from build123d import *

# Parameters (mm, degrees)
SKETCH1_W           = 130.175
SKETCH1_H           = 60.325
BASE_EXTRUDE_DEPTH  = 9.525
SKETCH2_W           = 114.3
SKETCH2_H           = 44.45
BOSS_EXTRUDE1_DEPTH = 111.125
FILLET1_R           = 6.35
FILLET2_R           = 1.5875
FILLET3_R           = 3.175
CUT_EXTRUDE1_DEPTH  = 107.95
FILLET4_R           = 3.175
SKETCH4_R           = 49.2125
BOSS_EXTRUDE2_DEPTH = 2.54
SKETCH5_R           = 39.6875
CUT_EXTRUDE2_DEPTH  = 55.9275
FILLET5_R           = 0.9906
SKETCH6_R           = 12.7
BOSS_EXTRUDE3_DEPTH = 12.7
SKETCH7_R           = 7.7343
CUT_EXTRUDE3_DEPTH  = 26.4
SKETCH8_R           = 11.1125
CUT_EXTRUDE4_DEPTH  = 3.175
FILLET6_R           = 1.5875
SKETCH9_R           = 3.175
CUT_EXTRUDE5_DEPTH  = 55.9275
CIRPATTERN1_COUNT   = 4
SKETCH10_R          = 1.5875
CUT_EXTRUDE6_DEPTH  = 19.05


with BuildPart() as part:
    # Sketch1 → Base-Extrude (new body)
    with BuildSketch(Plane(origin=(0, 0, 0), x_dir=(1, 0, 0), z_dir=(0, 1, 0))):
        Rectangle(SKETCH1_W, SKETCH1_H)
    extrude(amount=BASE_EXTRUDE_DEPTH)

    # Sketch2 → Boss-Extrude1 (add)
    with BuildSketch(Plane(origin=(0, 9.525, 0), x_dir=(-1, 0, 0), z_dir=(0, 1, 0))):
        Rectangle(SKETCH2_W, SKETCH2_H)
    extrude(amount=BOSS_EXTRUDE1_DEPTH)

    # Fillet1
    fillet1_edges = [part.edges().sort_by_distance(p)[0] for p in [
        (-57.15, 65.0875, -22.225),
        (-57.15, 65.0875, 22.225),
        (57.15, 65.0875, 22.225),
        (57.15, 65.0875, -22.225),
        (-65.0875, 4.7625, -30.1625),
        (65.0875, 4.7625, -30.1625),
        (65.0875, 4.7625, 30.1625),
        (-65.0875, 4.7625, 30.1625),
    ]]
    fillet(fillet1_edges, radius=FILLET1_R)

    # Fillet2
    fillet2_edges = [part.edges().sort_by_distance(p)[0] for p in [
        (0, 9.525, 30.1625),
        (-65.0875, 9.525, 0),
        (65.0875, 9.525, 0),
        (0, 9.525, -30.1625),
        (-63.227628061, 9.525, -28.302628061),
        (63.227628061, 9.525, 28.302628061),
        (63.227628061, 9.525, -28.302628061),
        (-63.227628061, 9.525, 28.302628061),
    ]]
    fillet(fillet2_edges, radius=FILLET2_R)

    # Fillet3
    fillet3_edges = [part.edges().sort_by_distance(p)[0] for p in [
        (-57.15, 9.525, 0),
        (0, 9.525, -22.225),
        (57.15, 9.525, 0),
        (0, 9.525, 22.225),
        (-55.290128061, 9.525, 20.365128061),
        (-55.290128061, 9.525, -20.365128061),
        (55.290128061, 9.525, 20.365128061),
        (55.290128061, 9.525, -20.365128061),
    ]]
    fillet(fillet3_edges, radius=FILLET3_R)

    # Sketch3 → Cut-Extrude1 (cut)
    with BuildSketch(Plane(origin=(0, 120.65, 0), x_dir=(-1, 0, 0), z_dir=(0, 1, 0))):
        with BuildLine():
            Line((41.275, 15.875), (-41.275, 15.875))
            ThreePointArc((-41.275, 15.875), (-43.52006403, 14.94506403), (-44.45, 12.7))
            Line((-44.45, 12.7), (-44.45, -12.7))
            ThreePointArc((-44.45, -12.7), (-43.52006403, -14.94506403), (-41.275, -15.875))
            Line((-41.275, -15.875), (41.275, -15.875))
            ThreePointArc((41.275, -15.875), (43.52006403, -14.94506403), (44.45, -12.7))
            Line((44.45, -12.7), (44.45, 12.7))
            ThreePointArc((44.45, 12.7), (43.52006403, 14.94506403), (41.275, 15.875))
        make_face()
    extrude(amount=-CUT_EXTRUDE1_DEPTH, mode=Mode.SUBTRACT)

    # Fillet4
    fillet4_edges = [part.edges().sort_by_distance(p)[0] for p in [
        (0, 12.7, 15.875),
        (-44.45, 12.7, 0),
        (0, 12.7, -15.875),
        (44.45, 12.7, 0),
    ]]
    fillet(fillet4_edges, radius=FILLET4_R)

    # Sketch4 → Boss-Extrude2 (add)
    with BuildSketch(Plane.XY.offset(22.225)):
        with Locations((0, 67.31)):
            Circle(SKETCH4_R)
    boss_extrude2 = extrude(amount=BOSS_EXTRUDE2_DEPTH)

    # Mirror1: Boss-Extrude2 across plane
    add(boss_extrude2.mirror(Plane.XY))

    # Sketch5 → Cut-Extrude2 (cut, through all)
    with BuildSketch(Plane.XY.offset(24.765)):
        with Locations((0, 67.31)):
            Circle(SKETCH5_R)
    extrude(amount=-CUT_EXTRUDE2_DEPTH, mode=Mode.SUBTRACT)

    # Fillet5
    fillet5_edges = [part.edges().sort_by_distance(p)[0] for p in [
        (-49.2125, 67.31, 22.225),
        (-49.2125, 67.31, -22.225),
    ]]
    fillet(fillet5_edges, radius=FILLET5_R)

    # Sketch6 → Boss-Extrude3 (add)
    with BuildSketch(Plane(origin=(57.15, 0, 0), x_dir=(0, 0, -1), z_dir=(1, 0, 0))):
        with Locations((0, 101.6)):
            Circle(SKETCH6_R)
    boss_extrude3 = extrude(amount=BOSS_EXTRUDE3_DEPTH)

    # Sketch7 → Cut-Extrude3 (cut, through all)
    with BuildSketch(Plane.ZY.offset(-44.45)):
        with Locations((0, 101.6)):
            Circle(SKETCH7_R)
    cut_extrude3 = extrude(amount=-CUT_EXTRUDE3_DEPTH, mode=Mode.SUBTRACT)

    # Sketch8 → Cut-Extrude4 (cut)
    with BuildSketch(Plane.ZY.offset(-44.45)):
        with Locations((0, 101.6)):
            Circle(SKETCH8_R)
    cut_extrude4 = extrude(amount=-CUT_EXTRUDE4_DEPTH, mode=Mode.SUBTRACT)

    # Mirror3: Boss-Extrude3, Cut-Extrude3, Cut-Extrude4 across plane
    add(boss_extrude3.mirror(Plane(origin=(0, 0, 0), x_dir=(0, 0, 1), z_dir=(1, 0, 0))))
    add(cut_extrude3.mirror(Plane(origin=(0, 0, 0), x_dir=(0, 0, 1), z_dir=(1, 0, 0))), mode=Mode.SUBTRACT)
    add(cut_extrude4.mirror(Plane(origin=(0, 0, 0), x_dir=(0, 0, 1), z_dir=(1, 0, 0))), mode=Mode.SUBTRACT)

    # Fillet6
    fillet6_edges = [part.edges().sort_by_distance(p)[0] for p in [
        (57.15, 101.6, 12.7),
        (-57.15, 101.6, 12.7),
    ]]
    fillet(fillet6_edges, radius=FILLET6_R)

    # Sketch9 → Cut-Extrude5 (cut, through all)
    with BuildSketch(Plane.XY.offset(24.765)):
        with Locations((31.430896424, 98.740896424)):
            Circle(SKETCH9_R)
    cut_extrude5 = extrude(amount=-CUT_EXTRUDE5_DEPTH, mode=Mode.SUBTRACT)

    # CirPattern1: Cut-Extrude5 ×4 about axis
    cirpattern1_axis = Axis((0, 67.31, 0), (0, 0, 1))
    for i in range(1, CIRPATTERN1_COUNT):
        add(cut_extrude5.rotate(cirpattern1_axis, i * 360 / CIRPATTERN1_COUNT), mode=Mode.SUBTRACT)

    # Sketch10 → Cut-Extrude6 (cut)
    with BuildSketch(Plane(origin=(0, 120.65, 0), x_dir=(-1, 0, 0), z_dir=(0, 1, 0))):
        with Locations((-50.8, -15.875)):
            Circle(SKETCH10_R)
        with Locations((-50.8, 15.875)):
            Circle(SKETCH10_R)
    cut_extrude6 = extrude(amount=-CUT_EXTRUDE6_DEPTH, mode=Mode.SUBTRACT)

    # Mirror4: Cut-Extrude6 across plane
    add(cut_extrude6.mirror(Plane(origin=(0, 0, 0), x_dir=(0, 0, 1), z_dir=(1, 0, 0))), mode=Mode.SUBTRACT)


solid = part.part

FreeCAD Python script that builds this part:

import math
import FreeCAD as App
import Part
import Sketcher

V = App.Vector
Q = App.Units.Quantity


def edges_at(feature, points):
    """Names of the edges that pass closest to the given points."""
    edges = feature.Shape.Edges
    near = lambda p: min(range(len(edges)), key=lambda i: edges[i].distToShape(Part.Vertex(*p))[0])
    return sorted({f"Edge{near(p) + 1}" for p in points})

doc = App.newDocument("Part")
body = doc.addObject("PartDesign::Body", "Body")

# Sketch on XZ plane
sketch1 = body.newObject("Sketcher::SketchObject", "Sketch")
sketch1.AttachmentSupport = (doc.getObject("XZ_Plane"), [""])
sketch1.MapMode = "FlatFace"
sketch1.addGeometry([
    Part.LineSegment(V(-65, -30, 0), V(-65, 30, 0)),
    Part.LineSegment(V(-65, 30, 0), V(65, 30, 0)),
    Part.LineSegment(V(65, 30, 0), V(65, -30, 0)),
    Part.LineSegment(V(65, -30, 0), V(-65, -30, 0)),
], False)
sketch1.addConstraint([
    Sketcher.Constraint("Coincident", 0, 2, 1, 1),
    Sketcher.Constraint("Coincident", 1, 2, 2, 1),
    Sketcher.Constraint("Coincident", 2, 2, 3, 1),
    Sketcher.Constraint("Coincident", 3, 2, 0, 1),
    Sketcher.Constraint("Vertical", 0),
    Sketcher.Constraint("Horizontal", 1),
    Sketcher.Constraint("Vertical", 2),
    Sketcher.Constraint("Horizontal", 3),
    Sketcher.Constraint("Symmetric", 0, 2, 2, 2, -1, 1),
    Sketcher.Constraint("DistanceX", 1, 1, 1, 2, Q("5.125 in")),
    Sketcher.Constraint("DistanceY", 0, 1, 0, 2, Q("2.375 in")),
])
pad1 = body.newObject("PartDesign::Pad", "Pad")
pad1.Profile = sketch1
pad1.Length = Q("0.375 in")
pad1.Reversed = True

# Sketch on XZ plane
sketch2 = body.newObject("Sketcher::SketchObject", "Sketch001")
sketch2.AttachmentSupport = (doc.getObject("XZ_Plane"), [""])
sketch2.MapMode = "FlatFace"
sketch2.AttachmentOffset = App.Placement(V(0, 0, -0.375 * 25.4), App.Rotation())
sketch2.addGeometry([
    Part.LineSegment(V(57, 22, 0), V(57, -22, 0)),
    Part.LineSegment(V(57, -22, 0), V(-57, -22, 0)),
    Part.LineSegment(V(-57, -22, 0), V(-57, 22, 0)),
    Part.LineSegment(V(-57, 22, 0), V(57, 22, 0)),
], False)
sketch2.addConstraint([
    Sketcher.Constraint("Coincident", 0, 2, 1, 1),
    Sketcher.Constraint("Coincident", 1, 2, 2, 1),
    Sketcher.Constraint("Coincident", 2, 2, 3, 1),
    Sketcher.Constraint("Coincident", 3, 2, 0, 1),
    Sketcher.Constraint("Vertical", 0),
    Sketcher.Constraint("Horizontal", 1),
    Sketcher.Constraint("Vertical", 2),
    Sketcher.Constraint("Horizontal", 3),
    Sketcher.Constraint("Symmetric", 0, 2, 2, 2, -1, 1),
    Sketcher.Constraint("DistanceX", 1, 2, 1, 1, Q("4.5 in")),
    Sketcher.Constraint("DistanceY", 0, 2, 0, 1, Q("1.75 in")),
])
pad2 = body.newObject("PartDesign::Pad", "Pad001")
pad2.Profile = sketch2
pad2.Length = Q("4.375 in")
pad2.Reversed = True
doc.recompute()

fillet = body.newObject("PartDesign::Fillet", "Fillet")
fillet.Base = (pad2, edges_at(pad2, [
    (-57.15, 65.088, -22.225),
    (-57.15, 65.088, 22.225),
    (57.15, 65.088, 22.225),
    (57.15, 65.088, -22.225),
    (-65.088, 4.763, -30.163),
    (65.088, 4.763, -30.163),
    (65.088, 4.763, 30.163),
    (-65.088, 4.763, 30.163),
]))
fillet.Radius = Q("0.25 in")
doc.recompute()

fillet2 = body.newObject("PartDesign::Fillet", "Fillet001")
fillet2.Base = (fillet, edges_at(fillet, [
    (0, 9.525, 30.163),
    (-65.088, 9.525, 0),
    (65.088, 9.525, 0),
    (0, 9.525, -30.163),
    (-63.228, 9.525, -28.303),
    (63.228, 9.525, 28.303),
    (63.228, 9.525, -28.303),
    (-63.228, 9.525, 28.303),
]))
fillet2.Radius = Q("0.0625 in")
doc.recompute()

fillet3 = body.newObject("PartDesign::Fillet", "Fillet002")
fillet3.Base = (fillet2, edges_at(fillet2, [
    (-57.15, 9.525, 0),
    (0, 9.525, -22.225),
    (57.15, 9.525, 0),
    (0, 9.525, 22.225),
    (-55.29, 9.525, 20.365),
    (-55.29, 9.525, -20.365),
    (55.29, 9.525, 20.365),
    (55.29, 9.525, -20.365),
]))
fillet3.Radius = Q("0.125 in")

# Sketch on XZ plane
sketch3 = body.newObject("Sketcher::SketchObject", "Sketch002")
sketch3.AttachmentSupport = (doc.getObject("XZ_Plane"), [""])
sketch3.MapMode = "FlatFace"
sketch3.AttachmentOffset = App.Placement(V(0, 0, -4.75 * 25.4), App.Rotation())
sketch3.addGeometry([
    Part.LineSegment(V(-41.3, 15.9, 0), V(41.3, 15.9, 0)),  # 0
    Part.ArcOfCircle(Part.Circle(V(41.3, 12.7, 0), V(0, 0, 1), 3.2), math.radians(0), math.radians(90)),  # 1
    Part.LineSegment(V(44.5, 12.7, 0), V(44.5, -12.7, 0)),  # 2
    Part.ArcOfCircle(Part.Circle(V(41.3, -12.7, 0), V(0, 0, 1), 3.2), math.radians(-90), math.radians(0)),  # 3
    Part.LineSegment(V(41.3, -15.9, 0), V(-41.3, -15.9, 0)),  # 4
    Part.ArcOfCircle(Part.Circle(V(-41.3, -12.7, 0), V(0, 0, 1), 3.2), math.radians(-180), math.radians(-90)),  # 5
    Part.LineSegment(V(-44.5, -12.7, 0), V(-44.5, 12.7, 0)),  # 6
    Part.ArcOfCircle(Part.Circle(V(-41.3, 12.7, 0), V(0, 0, 1), 3.2), math.radians(90), math.radians(180)),  # 7
], False)
sketch3.addConstraint([
    Sketcher.Constraint("Tangent", 0, 2, 1, 2),
    Sketcher.Constraint("Tangent", 1, 1, 2, 1),
    Sketcher.Constraint("Tangent", 2, 2, 3, 2),
    Sketcher.Constraint("Tangent", 3, 1, 4, 1),
    Sketcher.Constraint("Tangent", 4, 2, 5, 2),
    Sketcher.Constraint("Tangent", 5, 1, 6, 1),
    Sketcher.Constraint("Tangent", 6, 2, 7, 2),
    Sketcher.Constraint("Tangent", 7, 1, 0, 1),
    Sketcher.Constraint("Horizontal", 0),
    Sketcher.Constraint("Vertical", 2),
    Sketcher.Constraint("Horizontal", 4),
    Sketcher.Constraint("Vertical", 6),
    Sketcher.Constraint("Equal", 1, 3),
    Sketcher.Constraint("Equal", 3, 5),
    Sketcher.Constraint("Equal", 5, 7),
    Sketcher.Constraint("Symmetric", 1, 3, 5, 3, -1, 1),
    Sketcher.Constraint("DistanceY", 2, 2, 2, 1, Q("1 in")),
    Sketcher.Constraint("Radius", 1, Q("0.125 in")),
    Sketcher.Constraint("DistanceX", 0, 1, 0, 2, Q("3.25 in")),
])
pocket1 = body.newObject("PartDesign::Pocket", "Pocket")
pocket1.Profile = sketch3
pocket1.Length = Q("4.25 in")
pocket1.Reversed = True
doc.recompute()

fillet4 = body.newObject("PartDesign::Fillet", "Fillet003")
fillet4.Base = (pocket1, edges_at(pocket1, [
    (0, 12.7, 15.875),
    (-44.45, 12.7, 0),
    (0, 12.7, -15.875),
    (44.45, 12.7, 0),
]))
fillet4.Radius = Q("0.125 in")

# Sketch on XY plane
sketch4 = body.newObject("Sketcher::SketchObject", "Sketch003")
sketch4.AttachmentSupport = (doc.getObject("XY_Plane"), [""])
sketch4.MapMode = "FlatFace"
sketch4.AttachmentOffset = App.Placement(V(0, 0, 0.875 * 25.4), App.Rotation())
sketch4.addGeometry(Part.Circle(V(0, 67, 0), V(0, 0, 1), 49), False)
sketch4.addConstraint([
    Sketcher.Constraint("PointOnObject", 0, 3, -2),
    Sketcher.Constraint("Diameter", 0, Q("3.875 in")),
    Sketcher.Constraint("DistanceY", -1, 1, 0, 3, Q("2.65 in")),
])
pad3 = body.newObject("PartDesign::Pad", "Pad002")
pad3.Profile = sketch4
pad3.Length = Q("0.1 in")
doc.recompute()

mirrored = body.newObject("PartDesign::Mirrored", "Mirrored")
mirrored.Originals = [pad3]
mirrored.MirrorPlane = (doc.getObject("XY_Plane"), [""])
body.Tip = mirrored

# Sketch on XY plane
sketch5 = body.newObject("Sketcher::SketchObject", "Sketch004")
sketch5.AttachmentSupport = (doc.getObject("XY_Plane"), [""])
sketch5.MapMode = "FlatFace"
sketch5.AttachmentOffset = App.Placement(V(0, 0, 0.975 * 25.4), App.Rotation())
sketch5.addGeometry(Part.Circle(V(0, 67, 0), V(0, 0, 1), 40), False)
sketch5.addConstraint([
    Sketcher.Constraint("PointOnObject", 0, 3, -2),
    Sketcher.Constraint("Diameter", 0, Q("3.125 in")),
    Sketcher.Constraint("DistanceY", -1, 1, 0, 3, Q("2.65 in")),
])
pocket2 = body.newObject("PartDesign::Pocket", "Pocket001")
pocket2.Profile = sketch5
pocket2.Type = "ThroughAll"
doc.recompute()

fillet5 = body.newObject("PartDesign::Fillet", "Fillet004")
fillet5.Base = (pocket2, edges_at(pocket2, [(-49.212, 67.31, 22.225), (-49.212, 67.31, -22.225)]))
fillet5.Radius = Q("0.039 in")

# Sketch on YZ plane
sketch6 = body.newObject("Sketcher::SketchObject", "Sketch005")
sketch6.AttachmentSupport = (doc.getObject("YZ_Plane"), [""])
sketch6.MapMode = "FlatFace"
sketch6.AttachmentOffset = App.Placement(V(0, 0, 2.25 * 25.4), App.Rotation())
sketch6.addGeometry(Part.Circle(V(102, 0, 0), V(0, 0, 1), 13), False)
sketch6.addConstraint([
    Sketcher.Constraint("PointOnObject", 0, 3, -1),
    Sketcher.Constraint("Diameter", 0, Q("1 in")),
    Sketcher.Constraint("DistanceX", -1, 1, 0, 3, Q("4 in")),
])
pad4 = body.newObject("PartDesign::Pad", "Pad003")
pad4.Profile = sketch6
pad4.Length = Q("0.5 in")

# Sketch on YZ plane
sketch7 = body.newObject("Sketcher::SketchObject", "Sketch006")
sketch7.AttachmentSupport = (doc.getObject("YZ_Plane"), [""])
sketch7.MapMode = "FlatFace"
sketch7.AttachmentOffset = App.Placement(V(0, 0, 1.75 * 25.4), App.Rotation())
sketch7.addGeometry(Part.Circle(V(102, 0, 0), V(0, 0, 1), 8), False)
sketch7.addConstraint([
    Sketcher.Constraint("PointOnObject", 0, 3, -1),
    Sketcher.Constraint("Diameter", 0, Q("0.609 in")),
    Sketcher.Constraint("DistanceX", -1, 1, 0, 3, Q("4 in")),
])
pocket3 = body.newObject("PartDesign::Pocket", "Pocket002")
pocket3.Profile = sketch7
pocket3.Type = "ThroughAll"
pocket3.Reversed = True

# Sketch on YZ plane
sketch8 = body.newObject("Sketcher::SketchObject", "Sketch007")
sketch8.AttachmentSupport = (doc.getObject("YZ_Plane"), [""])
sketch8.MapMode = "FlatFace"
sketch8.AttachmentOffset = App.Placement(V(0, 0, 1.75 * 25.4), App.Rotation())
sketch8.addGeometry(Part.Circle(V(102, 0, 0), V(0, 0, 1), 11), False)
sketch8.addConstraint([
    Sketcher.Constraint("PointOnObject", 0, 3, -1),
    Sketcher.Constraint("Diameter", 0, Q("0.875 in")),
    Sketcher.Constraint("DistanceX", -1, 1, 0, 3, Q("4 in")),
])
pocket4 = body.newObject("PartDesign::Pocket", "Pocket003")
pocket4.Profile = sketch8
pocket4.Length = Q("0.125 in")
pocket4.Reversed = True
doc.recompute()

mirrored2 = body.newObject("PartDesign::Mirrored", "Mirrored001")
mirrored2.Originals = [pad4, pocket3, pocket4]
mirrored2.MirrorPlane = (doc.getObject("YZ_Plane"), [""])
body.Tip = mirrored2
doc.recompute()

fillet6 = body.newObject("PartDesign::Fillet", "Fillet005")
fillet6.Base = (mirrored2, edges_at(mirrored2, [(57.15, 101.6, 12.7), (-57.15, 101.6, 12.7)]))
fillet6.Radius = Q("0.0625 in")

# Sketch on XY plane
sketch9 = body.newObject("Sketcher::SketchObject", "Sketch008")
sketch9.AttachmentSupport = (doc.getObject("XY_Plane"), [""])
sketch9.MapMode = "FlatFace"
sketch9.AttachmentOffset = App.Placement(V(0, 0, 0.975 * 25.4), App.Rotation())
sketch9.addGeometry(Part.Circle(V(31.4, 98.7, 0), V(0, 0, 1), 3.2), False)
sketch9.addConstraint([
    Sketcher.Constraint("Diameter", 0, Q("0.25 in")),
    Sketcher.Constraint("DistanceX", -1, 1, 0, 3, 31.430896),
    Sketcher.Constraint("DistanceY", -1, 1, 0, 3, 98.740896),
])
pocket5 = body.newObject("PartDesign::Pocket", "Pocket004")
pocket5.Profile = sketch9
pocket5.Type = "ThroughAll"
doc.recompute()

datumline = body.newObject("PartDesign::Line", "DatumLine")
datumline.Placement = App.Placement(V(0, 67.31, 0), App.Rotation(V(0, 0, 1), V(0, 0, 1)))
polarpattern = body.newObject("PartDesign::PolarPattern", "PolarPattern")
polarpattern.Originals = [pocket5]
polarpattern.Axis = (datumline, [""])
polarpattern.Angle = 360
polarpattern.Occurrences = 4
body.Tip = polarpattern

# Sketch on XZ plane
sketch10 = body.newObject("Sketcher::SketchObject", "Sketch009")
sketch10.AttachmentSupport = (doc.getObject("XZ_Plane"), [""])
sketch10.MapMode = "FlatFace"
sketch10.AttachmentOffset = App.Placement(V(0, 0, -4.75 * 25.4), App.Rotation())
sketch10.addGeometry([
    Part.Circle(V(50.8, -15.9, 0), V(0, 0, 1), 1.6),
    Part.Circle(V(50.8, 15.9, 0), V(0, 0, 1), 1.6),
], False)
sketch10.addConstraint([
    Sketcher.Constraint("Equal", 0, 1),
    Sketcher.Constraint("Symmetric", 0, 3, 1, 3, -1),
    Sketcher.Constraint("Diameter", 0, Q("0.125 in")),
    Sketcher.Constraint("DistanceX", -1, 1, 0, 3, Q("2 in")),
    Sketcher.Constraint("DistanceY", 0, 3, 1, 3, Q("1.25 in")),
])
pocket6 = body.newObject("PartDesign::Pocket", "Pocket005")
pocket6.Profile = sketch10
pocket6.Length = Q("0.75 in")
pocket6.Reversed = True
doc.recompute()

mirrored3 = body.newObject("PartDesign::Mirrored", "Mirrored002")
mirrored3.Originals = [pocket6]
mirrored3.MirrorPlane = (doc.getObject("YZ_Plane"), [""])
body.Tip = mirrored3

doc.recompute()
